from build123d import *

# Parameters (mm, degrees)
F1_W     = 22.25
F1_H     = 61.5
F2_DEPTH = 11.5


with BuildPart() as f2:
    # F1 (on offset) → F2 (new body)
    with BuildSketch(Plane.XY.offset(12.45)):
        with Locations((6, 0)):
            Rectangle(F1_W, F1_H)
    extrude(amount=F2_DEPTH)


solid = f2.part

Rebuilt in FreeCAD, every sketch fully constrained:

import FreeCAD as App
import Part
import Sketcher

V = App.Vector
Q = App.Units.Quantity


def add_polygon(sketch, points):
    """Adds a closed chain of lines whose ends are joined by coincident constraints."""
    first, n = sketch.GeometryCount, len(points)
    for a, b in zip(points, points[1:] + points[:1]):
        sketch.addGeometry(Part.LineSegment(App.Vector(*a, 0), App.Vector(*b, 0)), False)
    for i in range(n):
        sketch.addConstraint(Sketcher.Constraint("Coincident", first + i, 2, first + (i + 1) % n, 1))

doc = App.newDocument("Part")
body = doc.addObject("PartDesign::Body", "Body")

sketch1 = doc.addObject("Sketcher::SketchObject", "Sketch")
body.addObject(sketch1)
sketch1.AttachmentSupport = (doc.XY_Plane, [""])
sketch1.MapMode = "FlatFace"
sketch1.AttachmentOffset = App.Placement(V(0, 0, 12.45), App.Rotation())
add_polygon(sketch1, [(-5.125, 30.75), (-5.125, -30.75), (17.125, -30.75), (17.125, 30.75)])
sketch1.addConstraint([
    Sketcher.Constraint("Vertical", 0),
    Sketcher.Constraint("Horizontal", 1),
    Sketcher.Constraint("Vertical", 2),
    Sketcher.Constraint("Horizontal", 3),
    Sketcher.Constraint("DistanceY", 0, 2, 0, 1, Q("61.5 mm")),
    Sketcher.Constraint("DistanceX", 1, 1, 1, 2, Q("22.25 mm")),
    Sketcher.Constraint("DistanceY", 0, 2, -1, 1, Q("30.75 mm")),
    Sketcher.Constraint("DistanceX", 0, 2, -1, 1, Q("5.125 mm")),
])
pad1 = doc.addObject("PartDesign::Pad", "Pad")
body.addObject(pad1)
pad1.Profile = sketch1
pad1.Length = 11.5

doc.recompute()
